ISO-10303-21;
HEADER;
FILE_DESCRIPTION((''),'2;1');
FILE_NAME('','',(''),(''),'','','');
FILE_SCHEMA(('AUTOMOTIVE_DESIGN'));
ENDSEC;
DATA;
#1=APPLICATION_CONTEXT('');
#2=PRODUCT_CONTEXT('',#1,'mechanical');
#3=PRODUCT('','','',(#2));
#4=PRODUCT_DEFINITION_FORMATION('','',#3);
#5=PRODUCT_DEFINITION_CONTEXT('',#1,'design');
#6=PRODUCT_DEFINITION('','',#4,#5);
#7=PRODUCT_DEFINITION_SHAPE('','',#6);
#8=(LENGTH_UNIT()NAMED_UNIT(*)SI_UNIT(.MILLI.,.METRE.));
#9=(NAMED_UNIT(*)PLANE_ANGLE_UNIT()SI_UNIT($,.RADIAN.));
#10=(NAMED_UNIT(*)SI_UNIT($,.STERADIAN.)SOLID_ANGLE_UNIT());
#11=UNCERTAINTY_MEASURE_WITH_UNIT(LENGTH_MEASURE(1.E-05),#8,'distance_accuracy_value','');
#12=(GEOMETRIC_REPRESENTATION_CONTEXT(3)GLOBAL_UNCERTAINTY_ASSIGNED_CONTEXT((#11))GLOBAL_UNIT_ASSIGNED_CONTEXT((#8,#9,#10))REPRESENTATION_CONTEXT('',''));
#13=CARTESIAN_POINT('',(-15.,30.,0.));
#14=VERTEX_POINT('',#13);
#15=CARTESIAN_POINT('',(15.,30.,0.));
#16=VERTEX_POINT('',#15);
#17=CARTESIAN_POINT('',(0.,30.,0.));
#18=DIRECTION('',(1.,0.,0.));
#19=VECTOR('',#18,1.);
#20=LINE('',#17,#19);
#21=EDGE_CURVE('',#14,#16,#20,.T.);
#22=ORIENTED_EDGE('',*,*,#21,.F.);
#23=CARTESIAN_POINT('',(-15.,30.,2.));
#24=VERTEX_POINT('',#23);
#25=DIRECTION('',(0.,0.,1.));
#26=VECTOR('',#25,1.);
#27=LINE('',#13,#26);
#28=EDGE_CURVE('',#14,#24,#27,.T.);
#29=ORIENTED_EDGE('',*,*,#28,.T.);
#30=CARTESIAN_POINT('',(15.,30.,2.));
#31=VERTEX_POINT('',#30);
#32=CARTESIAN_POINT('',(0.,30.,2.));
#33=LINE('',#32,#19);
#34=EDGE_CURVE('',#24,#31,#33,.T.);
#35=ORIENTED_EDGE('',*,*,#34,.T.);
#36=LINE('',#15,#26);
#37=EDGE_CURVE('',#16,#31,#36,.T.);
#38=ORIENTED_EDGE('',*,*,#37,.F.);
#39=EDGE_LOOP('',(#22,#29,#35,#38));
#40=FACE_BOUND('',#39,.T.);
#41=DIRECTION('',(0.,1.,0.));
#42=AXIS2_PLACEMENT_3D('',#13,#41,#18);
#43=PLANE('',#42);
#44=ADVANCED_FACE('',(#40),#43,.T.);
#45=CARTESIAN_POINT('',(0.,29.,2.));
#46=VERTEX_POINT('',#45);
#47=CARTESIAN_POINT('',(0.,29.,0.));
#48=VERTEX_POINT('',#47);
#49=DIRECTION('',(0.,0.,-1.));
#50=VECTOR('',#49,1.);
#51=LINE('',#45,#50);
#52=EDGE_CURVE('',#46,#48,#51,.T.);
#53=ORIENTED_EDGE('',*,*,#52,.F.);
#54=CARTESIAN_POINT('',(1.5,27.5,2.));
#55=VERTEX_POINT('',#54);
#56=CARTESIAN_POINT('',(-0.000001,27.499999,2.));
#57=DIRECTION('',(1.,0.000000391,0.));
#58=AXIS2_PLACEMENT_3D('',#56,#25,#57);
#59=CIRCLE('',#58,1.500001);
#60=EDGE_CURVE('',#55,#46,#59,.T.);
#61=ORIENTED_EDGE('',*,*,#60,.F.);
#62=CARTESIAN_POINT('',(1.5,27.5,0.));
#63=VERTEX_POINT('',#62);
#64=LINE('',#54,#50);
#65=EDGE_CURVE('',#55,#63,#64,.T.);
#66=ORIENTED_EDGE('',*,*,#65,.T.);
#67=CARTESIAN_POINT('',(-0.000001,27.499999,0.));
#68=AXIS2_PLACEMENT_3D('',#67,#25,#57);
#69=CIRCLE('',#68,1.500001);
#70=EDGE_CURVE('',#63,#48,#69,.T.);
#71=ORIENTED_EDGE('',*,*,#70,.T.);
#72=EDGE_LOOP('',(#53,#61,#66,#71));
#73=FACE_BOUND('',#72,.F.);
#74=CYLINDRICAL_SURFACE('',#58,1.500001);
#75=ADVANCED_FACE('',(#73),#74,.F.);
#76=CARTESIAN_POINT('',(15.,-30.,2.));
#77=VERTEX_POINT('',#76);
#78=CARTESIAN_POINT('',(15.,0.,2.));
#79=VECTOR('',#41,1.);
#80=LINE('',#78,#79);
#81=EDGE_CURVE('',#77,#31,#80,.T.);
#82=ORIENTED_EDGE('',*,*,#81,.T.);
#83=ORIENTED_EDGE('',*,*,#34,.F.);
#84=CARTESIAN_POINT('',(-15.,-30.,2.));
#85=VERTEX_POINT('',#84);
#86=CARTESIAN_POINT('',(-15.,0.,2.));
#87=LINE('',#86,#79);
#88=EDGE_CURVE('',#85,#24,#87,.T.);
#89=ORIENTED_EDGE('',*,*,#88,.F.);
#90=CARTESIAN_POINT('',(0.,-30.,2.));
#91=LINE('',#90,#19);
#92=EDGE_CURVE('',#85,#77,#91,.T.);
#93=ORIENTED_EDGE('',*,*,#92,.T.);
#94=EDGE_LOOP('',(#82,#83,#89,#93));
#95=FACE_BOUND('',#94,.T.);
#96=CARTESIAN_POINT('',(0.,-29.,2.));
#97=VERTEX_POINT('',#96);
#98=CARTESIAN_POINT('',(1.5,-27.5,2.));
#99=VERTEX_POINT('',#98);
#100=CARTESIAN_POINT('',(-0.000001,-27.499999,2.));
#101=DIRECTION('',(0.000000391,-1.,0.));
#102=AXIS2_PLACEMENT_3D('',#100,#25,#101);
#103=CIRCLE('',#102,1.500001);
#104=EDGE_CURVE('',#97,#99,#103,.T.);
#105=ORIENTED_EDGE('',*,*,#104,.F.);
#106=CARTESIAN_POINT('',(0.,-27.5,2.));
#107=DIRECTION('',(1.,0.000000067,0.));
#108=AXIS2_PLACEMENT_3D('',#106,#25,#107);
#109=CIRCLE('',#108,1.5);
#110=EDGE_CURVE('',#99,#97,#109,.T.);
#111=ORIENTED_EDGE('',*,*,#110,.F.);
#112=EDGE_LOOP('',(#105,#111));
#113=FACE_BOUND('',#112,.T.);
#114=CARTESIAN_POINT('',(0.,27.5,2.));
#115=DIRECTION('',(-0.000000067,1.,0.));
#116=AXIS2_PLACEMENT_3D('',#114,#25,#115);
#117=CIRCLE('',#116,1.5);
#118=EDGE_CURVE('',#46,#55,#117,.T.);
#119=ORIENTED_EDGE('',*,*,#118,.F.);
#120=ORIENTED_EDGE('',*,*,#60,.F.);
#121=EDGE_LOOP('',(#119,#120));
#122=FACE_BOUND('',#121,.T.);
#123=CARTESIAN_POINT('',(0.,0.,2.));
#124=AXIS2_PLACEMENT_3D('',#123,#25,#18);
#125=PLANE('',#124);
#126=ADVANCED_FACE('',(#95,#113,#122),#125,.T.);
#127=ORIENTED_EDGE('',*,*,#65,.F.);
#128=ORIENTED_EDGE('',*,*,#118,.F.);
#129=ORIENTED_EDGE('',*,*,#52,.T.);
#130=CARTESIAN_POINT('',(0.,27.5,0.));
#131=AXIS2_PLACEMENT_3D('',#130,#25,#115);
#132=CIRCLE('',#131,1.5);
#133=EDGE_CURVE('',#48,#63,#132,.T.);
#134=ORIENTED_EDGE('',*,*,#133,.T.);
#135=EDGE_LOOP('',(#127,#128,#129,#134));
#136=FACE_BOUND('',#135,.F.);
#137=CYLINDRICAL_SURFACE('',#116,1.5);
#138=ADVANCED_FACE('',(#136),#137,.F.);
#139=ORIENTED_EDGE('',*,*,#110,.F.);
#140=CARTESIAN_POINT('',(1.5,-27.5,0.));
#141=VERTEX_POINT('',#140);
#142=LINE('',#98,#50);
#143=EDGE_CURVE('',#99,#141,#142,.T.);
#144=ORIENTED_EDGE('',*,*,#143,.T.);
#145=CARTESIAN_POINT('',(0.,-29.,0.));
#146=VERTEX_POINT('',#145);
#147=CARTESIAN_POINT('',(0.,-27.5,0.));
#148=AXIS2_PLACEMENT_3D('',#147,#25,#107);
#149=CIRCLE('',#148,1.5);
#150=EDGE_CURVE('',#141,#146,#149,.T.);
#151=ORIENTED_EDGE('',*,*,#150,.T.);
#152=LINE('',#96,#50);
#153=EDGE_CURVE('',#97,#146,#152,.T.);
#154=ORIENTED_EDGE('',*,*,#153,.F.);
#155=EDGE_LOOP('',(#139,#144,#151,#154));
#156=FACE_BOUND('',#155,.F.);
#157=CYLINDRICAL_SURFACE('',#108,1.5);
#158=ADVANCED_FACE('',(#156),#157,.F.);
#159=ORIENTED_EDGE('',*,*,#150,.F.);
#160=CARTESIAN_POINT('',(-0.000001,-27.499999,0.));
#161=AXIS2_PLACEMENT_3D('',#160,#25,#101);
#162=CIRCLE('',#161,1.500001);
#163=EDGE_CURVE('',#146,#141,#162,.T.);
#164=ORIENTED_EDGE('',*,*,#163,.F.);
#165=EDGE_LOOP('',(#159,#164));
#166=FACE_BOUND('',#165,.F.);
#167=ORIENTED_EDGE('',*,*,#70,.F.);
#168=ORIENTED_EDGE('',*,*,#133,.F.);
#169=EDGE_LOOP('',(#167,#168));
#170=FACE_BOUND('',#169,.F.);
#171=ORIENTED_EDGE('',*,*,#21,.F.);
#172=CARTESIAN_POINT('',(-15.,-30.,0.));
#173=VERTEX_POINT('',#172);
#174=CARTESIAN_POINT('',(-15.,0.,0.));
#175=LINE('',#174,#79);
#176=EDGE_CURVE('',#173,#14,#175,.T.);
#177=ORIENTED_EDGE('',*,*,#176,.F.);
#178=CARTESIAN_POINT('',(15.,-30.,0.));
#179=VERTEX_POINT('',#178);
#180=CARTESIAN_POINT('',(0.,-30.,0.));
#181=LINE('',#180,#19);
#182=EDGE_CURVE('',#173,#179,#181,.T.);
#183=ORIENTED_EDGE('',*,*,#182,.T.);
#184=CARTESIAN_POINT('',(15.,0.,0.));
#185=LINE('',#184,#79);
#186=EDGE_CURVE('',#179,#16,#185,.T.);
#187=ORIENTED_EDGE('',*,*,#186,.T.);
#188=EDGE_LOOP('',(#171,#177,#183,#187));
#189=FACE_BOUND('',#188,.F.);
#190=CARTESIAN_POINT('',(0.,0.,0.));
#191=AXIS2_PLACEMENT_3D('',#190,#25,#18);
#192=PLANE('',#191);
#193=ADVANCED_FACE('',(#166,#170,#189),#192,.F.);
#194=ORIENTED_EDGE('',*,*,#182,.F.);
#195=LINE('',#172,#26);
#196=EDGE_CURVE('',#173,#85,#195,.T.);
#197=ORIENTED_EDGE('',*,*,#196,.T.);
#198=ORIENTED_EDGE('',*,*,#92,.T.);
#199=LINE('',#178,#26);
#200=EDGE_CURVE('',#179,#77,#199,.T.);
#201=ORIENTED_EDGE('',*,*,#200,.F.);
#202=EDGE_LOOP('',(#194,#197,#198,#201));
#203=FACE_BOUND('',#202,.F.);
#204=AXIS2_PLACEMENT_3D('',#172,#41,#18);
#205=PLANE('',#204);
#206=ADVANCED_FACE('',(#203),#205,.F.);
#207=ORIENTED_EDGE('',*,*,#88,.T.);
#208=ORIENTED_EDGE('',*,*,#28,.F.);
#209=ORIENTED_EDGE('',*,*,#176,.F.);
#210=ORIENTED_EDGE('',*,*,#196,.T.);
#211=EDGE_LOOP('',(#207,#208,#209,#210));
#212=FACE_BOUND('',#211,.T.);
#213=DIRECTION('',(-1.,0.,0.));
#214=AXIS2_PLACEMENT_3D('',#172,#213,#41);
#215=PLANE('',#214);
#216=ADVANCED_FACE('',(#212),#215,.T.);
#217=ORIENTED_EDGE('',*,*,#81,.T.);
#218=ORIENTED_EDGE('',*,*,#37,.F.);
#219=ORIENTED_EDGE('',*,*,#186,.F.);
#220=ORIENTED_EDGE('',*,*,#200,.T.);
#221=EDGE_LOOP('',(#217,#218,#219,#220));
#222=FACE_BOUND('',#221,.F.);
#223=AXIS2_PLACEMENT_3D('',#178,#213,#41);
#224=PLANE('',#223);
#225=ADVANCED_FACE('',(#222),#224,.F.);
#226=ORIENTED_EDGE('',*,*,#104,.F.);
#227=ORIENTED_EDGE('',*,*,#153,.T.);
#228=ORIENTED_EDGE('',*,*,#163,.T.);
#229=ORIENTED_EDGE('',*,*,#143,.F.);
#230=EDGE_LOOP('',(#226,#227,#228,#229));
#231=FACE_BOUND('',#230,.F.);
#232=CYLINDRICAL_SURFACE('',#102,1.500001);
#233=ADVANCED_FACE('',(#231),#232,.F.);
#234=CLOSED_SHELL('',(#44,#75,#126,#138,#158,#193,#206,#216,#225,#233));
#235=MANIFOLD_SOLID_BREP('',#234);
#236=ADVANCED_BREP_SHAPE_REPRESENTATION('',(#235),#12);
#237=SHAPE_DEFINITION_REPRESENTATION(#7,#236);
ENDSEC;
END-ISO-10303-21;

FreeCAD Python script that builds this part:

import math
import FreeCAD as App
import Part
import Sketcher
from FreeCAD import Vector

doc = App.newDocument("Part")
body = doc.addObject("PartDesign::Body", "Body")

# Sketch on XY plane
sketch1 = doc.addObject("Sketcher::SketchObject", "Sketch")
body.addObject(sketch1)
sketch1.AttachmentSupport = (doc.XY_Plane, [""])
sketch1.MapMode = "FlatFace"
sketch1.addGeometry(Part.LineSegment(Vector(-15, 30, 0), Vector(-15, -30, 0)), False)
sketch1.addGeometry(Part.LineSegment(Vector(-15, -30, 0), Vector(15, -30, 0)), False)
sketch1.addGeometry(Part.LineSegment(Vector(15, -30, 0), Vector(15, 30, 0)), False)
sketch1.addGeometry(Part.LineSegment(Vector(15, 30, 0), Vector(-15, 30, 0)), False)
sketch1.addConstraint(Sketcher.Constraint("Coincident", 0, 2, 1, 1))
sketch1.addConstraint(Sketcher.Constraint("Coincident", 1, 2, 2, 1))
sketch1.addConstraint(Sketcher.Constraint("Coincident", 2, 2, 3, 1))
sketch1.addConstraint(Sketcher.Constraint("Coincident", 3, 2, 0, 1))
sketch1.addConstraint(Sketcher.Constraint("Vertical", 0))
sketch1.addConstraint(Sketcher.Constraint("Horizontal", 1))
sketch1.addConstraint(Sketcher.Constraint("Vertical", 2))
sketch1.addConstraint(Sketcher.Constraint("Horizontal", 3))
sketch1.addConstraint(Sketcher.Constraint("Symmetric", 0, 2, 2, 2, -1, 1))
sketch1.addConstraint(Sketcher.Constraint("DistanceX", 1, 1, 1, 2, 30.0))
sketch1.addConstraint(Sketcher.Constraint("DistanceY", 0, 2, 0, 1, 60.0))
pad1 = doc.addObject("PartDesign::Pad", "Pad")
body.addObject(pad1)
pad1.Profile = sketch1
pad1.Length = 2

# Sketch on XY plane
sketch2 = doc.addObject("Sketcher::SketchObject", "Sketch001")
body.addObject(sketch2)
sketch2.AttachmentSupport = (doc.XY_Plane, [""])
sketch2.MapMode = "FlatFace"
sketch2.AttachmentOffset = App.Placement(Vector(0, 0, 2), App.Rotation())
sketch2.addGeometry(Part.ArcOfCircle(Part.Circle(Vector(0, -27.5, 0), Vector(0, 0, 1), 1.5), math.radians(0.000004), math.radians(269.999996)), False)
sketch2.addGeometry(Part.ArcOfCircle(Part.Circle(Vector(-0.000001, -27.499999, 0), Vector(0, 0, 1), 1.500001), math.radians(-89.999978), math.radians(-0.000022)), False)
sketch2.addGeometry(Part.ArcOfCircle(Part.Circle(Vector(-0.000001, 27.499999, 0), Vector(0, 0, 1), 1.500001), math.radians(0.000022), math.radians(89.999978)), False)
sketch2.addGeometry(Part.ArcOfCircle(Part.Circle(Vector(0, 27.5, 0), Vector(0, 0, 1), 1.5), math.radians(90.000004), math.radians(359.999996)), False)
sketch2.addConstraint(Sketcher.Constraint("Tangent", 0, 1, 1, 2))
sketch2.addConstraint(Sketcher.Constraint("Coincident", 1, 1, 0, 2))
sketch2.addConstraint(Sketcher.Constraint("Tangent", 2, 1, 3, 2))
sketch2.addConstraint(Sketcher.Constraint("Coincident", 3, 1, 2, 2))
sketch2.addConstraint(Sketcher.Constraint("Equal", 1, 2))
sketch2.addConstraint(Sketcher.Constraint("Symmetric", 0, 3, 2, 3, -1, 1))
sketch2.addConstraint(Sketcher.Constraint("Symmetric", 0, 1, 2, 1, -1))
sketch2.addConstraint(Sketcher.Constraint("PointOnObject", 1, 1, -2))
sketch2.addConstraint(Sketcher.Constraint("PointOnObject", 3, 1, -2))
sketch2.addConstraint(Sketcher.Constraint("Horizontal", 1, 3, 0, 1))
sketch2.addConstraint(Sketcher.Constraint("Radius", 0, 1.5))
sketch2.addConstraint(Sketcher.Constraint("DistanceY", 1, 1, -1, 1, 29.0))
pocket1 = doc.addObject("PartDesign::Pocket", "Pocket")
body.addObject(pocket1)
pocket1.Profile = sketch2
pocket1.Length = 25

doc.recompute()
